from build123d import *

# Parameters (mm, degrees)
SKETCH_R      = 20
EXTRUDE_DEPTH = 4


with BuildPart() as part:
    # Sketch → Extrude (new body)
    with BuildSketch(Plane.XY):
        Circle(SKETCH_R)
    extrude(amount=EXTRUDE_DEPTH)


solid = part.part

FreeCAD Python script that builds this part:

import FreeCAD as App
import Part
import Sketcher

V = App.Vector

doc = App.newDocument("Part")
params = doc.addObject("Spreadsheet::Sheet", "Params")
for row, (alias, value) in enumerate([
    ("sketch1_diameter", "40 mm"),
    ("pad1_length", "4 mm"),
], start=1):
    params.set(f"A{row}", alias)
    params.set(f"B{row}", "=" + value)
    params.setAlias(f"B{row}", alias)

body = doc.addObject("PartDesign::Body", "Body")

# Sketch on XY plane
sketch1 = body.newObject("Sketcher::SketchObject", "Sketch")
sketch1.AttachmentSupport = (doc.getObject("XY_Plane"), [""])
sketch1.MapMode = "FlatFace"
sketch1.addGeometry(Part.Circle(V(0, 0, 0), V(0, 0, 1), 20), False)
sketch1.addConstraint(Sketcher.Constraint("Coincident", 0, 3, -1, 1))
sketch1.addConstraint(Sketcher.Constraint("Diameter", 0, 40.0))
sketch1.setExpression("Constraints[1]", "Params.sketch1_diameter")
pad1 = body.newObject("PartDesign::Pad", "Pad")
pad1.Profile = sketch1
pad1.setExpression("Length", "Params.pad1_length")

doc.recompute()
